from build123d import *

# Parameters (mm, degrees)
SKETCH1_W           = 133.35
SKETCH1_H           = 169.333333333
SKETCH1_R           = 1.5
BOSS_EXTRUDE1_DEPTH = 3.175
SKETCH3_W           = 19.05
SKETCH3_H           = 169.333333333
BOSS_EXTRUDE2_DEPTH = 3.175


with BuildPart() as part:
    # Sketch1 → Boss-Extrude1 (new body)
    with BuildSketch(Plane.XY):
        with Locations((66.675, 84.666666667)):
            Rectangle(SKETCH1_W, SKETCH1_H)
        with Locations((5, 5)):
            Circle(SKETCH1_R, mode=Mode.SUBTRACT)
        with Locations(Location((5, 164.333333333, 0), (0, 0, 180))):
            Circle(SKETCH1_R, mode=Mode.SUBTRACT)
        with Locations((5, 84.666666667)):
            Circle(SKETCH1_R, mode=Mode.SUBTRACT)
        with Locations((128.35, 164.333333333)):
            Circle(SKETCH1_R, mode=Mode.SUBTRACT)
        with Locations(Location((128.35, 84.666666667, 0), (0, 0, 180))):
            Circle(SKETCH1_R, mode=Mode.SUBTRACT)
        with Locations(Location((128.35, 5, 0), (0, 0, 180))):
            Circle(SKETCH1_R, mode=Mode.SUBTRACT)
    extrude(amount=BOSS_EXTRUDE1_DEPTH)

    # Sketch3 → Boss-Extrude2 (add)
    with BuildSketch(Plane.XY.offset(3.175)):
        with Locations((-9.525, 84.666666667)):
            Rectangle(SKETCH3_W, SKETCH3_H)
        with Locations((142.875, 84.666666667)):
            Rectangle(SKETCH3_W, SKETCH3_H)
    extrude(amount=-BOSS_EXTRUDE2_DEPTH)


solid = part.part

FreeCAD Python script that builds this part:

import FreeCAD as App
import Part
import Sketcher
Q = App.Units.Quantity

doc = App.newDocument("Part")
body = doc.addObject("PartDesign::Body", "Body")

# Sketch on XY plane
sketch1 = body.newObject("Sketcher::SketchObject", "Sketch")
sketch1.AttachmentSupport = (doc.getObject("XY_Plane"), [""])
sketch1.MapMode = "FlatFace"
sketch1.addGeometry([
    Part.LineSegment(App.Vector(0, 169.333333, 0), App.Vector(0, 0, 0)),  # 0
    Part.LineSegment(App.Vector(0, 0, 0), App.Vector(133.35, 0, 0)),  # 1
    Part.LineSegment(App.Vector(133.35, 0, 0), App.Vector(133.35, 169.333333, 0)),  # 2
    Part.LineSegment(App.Vector(133.35, 169.333333, 0), App.Vector(0, 169.333333, 0)),  # 3
    Part.Circle(App.Vector(5, 5, 0), App.Vector(0, 0, 1), 1.5),  # 4
    Part.Circle(App.Vector(128.35, 5, 0), App.Vector(0, 0, 1), 1.5),  # 5
    Part.Circle(App.Vector(5, 84.666667, 0), App.Vector(0, 0, 1), 1.5),  # 6
    Part.Circle(App.Vector(5, 164.333333, 0), App.Vector(0, 0, 1), 1.5),  # 7
    Part.Circle(App.Vector(128.35, 84.666667, 0), App.Vector(0, 0, 1), 1.5),  # 8
    Part.Circle(App.Vector(128.35, 164.333333, 0), App.Vector(0, 0, 1), 1.5),  # 9
], False)
sketch1.addConstraint([
    Sketcher.Constraint("Coincident", 0, 2, 1, 1),
    Sketcher.Constraint("Coincident", 1, 2, 2, 1),
    Sketcher.Constraint("Coincident", 2, 2, 3, 1),
    Sketcher.Constraint("Coincident", 3, 2, 0, 1),
    Sketcher.Constraint("Vertical", 0),
    Sketcher.Constraint("Horizontal", 1),
    Sketcher.Constraint("Vertical", 2),
    Sketcher.Constraint("Horizontal", 3),
    Sketcher.Constraint("Coincident", 0, 2, -1, 1),
    Sketcher.Constraint("Equal", 4, 5),
    Sketcher.Constraint("Equal", 5, 6),
    Sketcher.Constraint("Equal", 6, 7),
    Sketcher.Constraint("Equal", 7, 8),
    Sketcher.Constraint("Equal", 8, 9),
    Sketcher.Constraint("Horizontal", 4, 3, 5, 3),
    Sketcher.Constraint("Horizontal", 6, 3, 8, 3),
    Sketcher.Constraint("Horizontal", 7, 3, 9, 3),
    Sketcher.Constraint("Vertical", 4, 3, 6, 3),
    Sketcher.Constraint("Vertical", 6, 3, 7, 3),
    Sketcher.Constraint("Vertical", 5, 3, 8, 3),
    Sketcher.Constraint("Vertical", 8, 3, 9, 3),
    Sketcher.Constraint("DistanceX", 1, 1, 1, 2, Q("5.25 in")),
    Sketcher.Constraint("Diameter", 4, 3.0),
    Sketcher.Constraint("DistanceX", -1, 1, 4, 3, 5.0),
    Sketcher.Constraint("DistanceY", -1, 1, 4, 3, 5.0),
    Sketcher.Constraint("DistanceX", -1, 1, 5, 3, 128.35),
    Sketcher.Constraint("DistanceY", 9, 3, 2, 2, 5.0),
    Sketcher.Constraint("DistanceY", 0, 2, 0, 1, 169.333333),
    Sketcher.Constraint("DistanceY", -1, 1, 6, 3, 84.666667),
])
pad1 = body.newObject("PartDesign::Pad", "Pad")
pad1.Profile = sketch1
pad1.Length = Q("0.125 in")

# Sketch on XY plane
sketch2 = body.newObject("Sketcher::SketchObject", "Sketch001")
sketch2.AttachmentSupport = (doc.getObject("XY_Plane"), [""])
sketch2.MapMode = "FlatFace"
sketch2.AttachmentOffset = App.Placement(App.Vector(0, 0, 0.125 * 25.4), App.Rotation())
sketch2.addGeometry([
    Part.LineSegment(App.Vector(-19.05, 169.333333, 0), App.Vector(-19.05, 0, 0)),  # 0
    Part.LineSegment(App.Vector(-19.05, 0, 0), App.Vector(0, 0, 0)),  # 1
    Part.LineSegment(App.Vector(0, 0, 0), App.Vector(0, 169.333333, 0)),  # 2
    Part.LineSegment(App.Vector(0, 169.333333, 0), App.Vector(-19.05, 169.333333, 0)),  # 3
    Part.LineSegment(App.Vector(133.35, 169.333333, 0), App.Vector(133.35, 0, 0)),  # 4
    Part.LineSegment(App.Vector(133.35, 0, 0), App.Vector(152.4, 0, 0)),  # 5
    Part.LineSegment(App.Vector(152.4, 0, 0), App.Vector(152.4, 169.333333, 0)),  # 6
    Part.LineSegment(App.Vector(152.4, 169.333333, 0), App.Vector(133.35, 169.333333, 0)),  # 7
], False)
sketch2.addConstraint([
    Sketcher.Constraint("Coincident", 0, 2, 1, 1),
    Sketcher.Constraint("Coincident", 1, 2, 2, 1),
    Sketcher.Constraint("Coincident", 2, 2, 3, 1),
    Sketcher.Constraint("Coincident", 3, 2, 0, 1),
    Sketcher.Constraint("Coincident", 4, 2, 5, 1),
    Sketcher.Constraint("Coincident", 5, 2, 6, 1),
    Sketcher.Constraint("Coincident", 6, 2, 7, 1),
    Sketcher.Constraint("Coincident", 7, 2, 4, 1),
    Sketcher.Constraint("Vertical", 0),
    Sketcher.Constraint("Horizontal", 1),
    Sketcher.Constraint("Vertical", 2),
    Sketcher.Constraint("Horizontal", 3),
    Sketcher.Constraint("Vertical", 4),
    Sketcher.Constraint("Horizontal", 5),
    Sketcher.Constraint("Vertical", 6),
    Sketcher.Constraint("Horizontal", 7),
    Sketcher.Constraint("Coincident", 1, 2, -1, 1),
    Sketcher.Constraint("PointOnObject", 4, 2, -1),
    Sketcher.Constraint("Horizontal", 3, 2, 6, 2),
    Sketcher.Constraint("Equal", 3, 5),
    Sketcher.Constraint("DistanceX", -1, 1, 5, 2, Q("6 in")),
    Sketcher.Constraint("DistanceX", 1, 1, 1, 2, Q("0.75 in")),
    Sketcher.Constraint("DistanceY", 0, 2, 0, 1, 169.333333),
])
pad2 = body.newObject("PartDesign::Pad", "Pad001")
pad2.Profile = sketch2
pad2.Length = Q("0.125 in")
pad2.Reversed = True

doc.recompute()
